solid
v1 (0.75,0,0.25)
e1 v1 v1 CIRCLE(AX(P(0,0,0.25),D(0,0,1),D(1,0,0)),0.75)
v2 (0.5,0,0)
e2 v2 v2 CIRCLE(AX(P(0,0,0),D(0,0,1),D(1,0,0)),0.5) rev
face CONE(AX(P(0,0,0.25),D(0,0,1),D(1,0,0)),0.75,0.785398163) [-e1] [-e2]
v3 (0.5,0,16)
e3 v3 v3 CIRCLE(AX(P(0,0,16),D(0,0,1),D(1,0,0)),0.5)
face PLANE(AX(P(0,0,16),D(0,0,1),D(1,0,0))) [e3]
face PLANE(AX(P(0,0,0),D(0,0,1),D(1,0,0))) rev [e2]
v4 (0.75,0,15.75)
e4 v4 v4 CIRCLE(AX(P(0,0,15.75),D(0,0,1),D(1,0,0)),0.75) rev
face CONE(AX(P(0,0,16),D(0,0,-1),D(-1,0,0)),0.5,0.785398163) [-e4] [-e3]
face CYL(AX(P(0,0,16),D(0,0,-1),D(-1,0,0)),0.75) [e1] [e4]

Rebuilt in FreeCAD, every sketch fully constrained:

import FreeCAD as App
import Part
import Sketcher
from FreeCAD import Vector


def edges_at(feature, points):
    """Names of the edges that pass closest to the given points."""
    edges = feature.Shape.Edges
    near = lambda p: min(range(len(edges)), key=lambda i: edges[i].distToShape(Part.Vertex(*p))[0])
    return sorted({f"Edge{near(p) + 1}" for p in points})

doc = App.newDocument("Part")
body = doc.addObject("PartDesign::Body", "Body")

# Sketch on XY plane
sketch1 = doc.addObject("Sketcher::SketchObject", "Sketch")
body.addObject(sketch1)
sketch1.AttachmentSupport = (doc.XY_Plane, [""])
sketch1.MapMode = "FlatFace"
sketch1.addGeometry(Part.Circle(Vector(0, 0, 0), Vector(0, 0, 1), 0.8), False)
sketch1.addConstraint(Sketcher.Constraint("Coincident", 0, 3, -1, 1))
sketch1.addConstraint(Sketcher.Constraint("Diameter", 0, 1.5))
pad1 = doc.addObject("PartDesign::Pad", "Pad")
body.addObject(pad1)
pad1.Profile = sketch1
pad1.Length = 16
doc.recompute()

chamfer = doc.addObject("PartDesign::Chamfer", "Chamfer")
body.addObject(chamfer)
chamfer.Base = (pad1, edges_at(pad1, [(-0.75, 0, 0), (-0.75, 0, 16)]))
chamfer.Size = 0.25

doc.recompute()
